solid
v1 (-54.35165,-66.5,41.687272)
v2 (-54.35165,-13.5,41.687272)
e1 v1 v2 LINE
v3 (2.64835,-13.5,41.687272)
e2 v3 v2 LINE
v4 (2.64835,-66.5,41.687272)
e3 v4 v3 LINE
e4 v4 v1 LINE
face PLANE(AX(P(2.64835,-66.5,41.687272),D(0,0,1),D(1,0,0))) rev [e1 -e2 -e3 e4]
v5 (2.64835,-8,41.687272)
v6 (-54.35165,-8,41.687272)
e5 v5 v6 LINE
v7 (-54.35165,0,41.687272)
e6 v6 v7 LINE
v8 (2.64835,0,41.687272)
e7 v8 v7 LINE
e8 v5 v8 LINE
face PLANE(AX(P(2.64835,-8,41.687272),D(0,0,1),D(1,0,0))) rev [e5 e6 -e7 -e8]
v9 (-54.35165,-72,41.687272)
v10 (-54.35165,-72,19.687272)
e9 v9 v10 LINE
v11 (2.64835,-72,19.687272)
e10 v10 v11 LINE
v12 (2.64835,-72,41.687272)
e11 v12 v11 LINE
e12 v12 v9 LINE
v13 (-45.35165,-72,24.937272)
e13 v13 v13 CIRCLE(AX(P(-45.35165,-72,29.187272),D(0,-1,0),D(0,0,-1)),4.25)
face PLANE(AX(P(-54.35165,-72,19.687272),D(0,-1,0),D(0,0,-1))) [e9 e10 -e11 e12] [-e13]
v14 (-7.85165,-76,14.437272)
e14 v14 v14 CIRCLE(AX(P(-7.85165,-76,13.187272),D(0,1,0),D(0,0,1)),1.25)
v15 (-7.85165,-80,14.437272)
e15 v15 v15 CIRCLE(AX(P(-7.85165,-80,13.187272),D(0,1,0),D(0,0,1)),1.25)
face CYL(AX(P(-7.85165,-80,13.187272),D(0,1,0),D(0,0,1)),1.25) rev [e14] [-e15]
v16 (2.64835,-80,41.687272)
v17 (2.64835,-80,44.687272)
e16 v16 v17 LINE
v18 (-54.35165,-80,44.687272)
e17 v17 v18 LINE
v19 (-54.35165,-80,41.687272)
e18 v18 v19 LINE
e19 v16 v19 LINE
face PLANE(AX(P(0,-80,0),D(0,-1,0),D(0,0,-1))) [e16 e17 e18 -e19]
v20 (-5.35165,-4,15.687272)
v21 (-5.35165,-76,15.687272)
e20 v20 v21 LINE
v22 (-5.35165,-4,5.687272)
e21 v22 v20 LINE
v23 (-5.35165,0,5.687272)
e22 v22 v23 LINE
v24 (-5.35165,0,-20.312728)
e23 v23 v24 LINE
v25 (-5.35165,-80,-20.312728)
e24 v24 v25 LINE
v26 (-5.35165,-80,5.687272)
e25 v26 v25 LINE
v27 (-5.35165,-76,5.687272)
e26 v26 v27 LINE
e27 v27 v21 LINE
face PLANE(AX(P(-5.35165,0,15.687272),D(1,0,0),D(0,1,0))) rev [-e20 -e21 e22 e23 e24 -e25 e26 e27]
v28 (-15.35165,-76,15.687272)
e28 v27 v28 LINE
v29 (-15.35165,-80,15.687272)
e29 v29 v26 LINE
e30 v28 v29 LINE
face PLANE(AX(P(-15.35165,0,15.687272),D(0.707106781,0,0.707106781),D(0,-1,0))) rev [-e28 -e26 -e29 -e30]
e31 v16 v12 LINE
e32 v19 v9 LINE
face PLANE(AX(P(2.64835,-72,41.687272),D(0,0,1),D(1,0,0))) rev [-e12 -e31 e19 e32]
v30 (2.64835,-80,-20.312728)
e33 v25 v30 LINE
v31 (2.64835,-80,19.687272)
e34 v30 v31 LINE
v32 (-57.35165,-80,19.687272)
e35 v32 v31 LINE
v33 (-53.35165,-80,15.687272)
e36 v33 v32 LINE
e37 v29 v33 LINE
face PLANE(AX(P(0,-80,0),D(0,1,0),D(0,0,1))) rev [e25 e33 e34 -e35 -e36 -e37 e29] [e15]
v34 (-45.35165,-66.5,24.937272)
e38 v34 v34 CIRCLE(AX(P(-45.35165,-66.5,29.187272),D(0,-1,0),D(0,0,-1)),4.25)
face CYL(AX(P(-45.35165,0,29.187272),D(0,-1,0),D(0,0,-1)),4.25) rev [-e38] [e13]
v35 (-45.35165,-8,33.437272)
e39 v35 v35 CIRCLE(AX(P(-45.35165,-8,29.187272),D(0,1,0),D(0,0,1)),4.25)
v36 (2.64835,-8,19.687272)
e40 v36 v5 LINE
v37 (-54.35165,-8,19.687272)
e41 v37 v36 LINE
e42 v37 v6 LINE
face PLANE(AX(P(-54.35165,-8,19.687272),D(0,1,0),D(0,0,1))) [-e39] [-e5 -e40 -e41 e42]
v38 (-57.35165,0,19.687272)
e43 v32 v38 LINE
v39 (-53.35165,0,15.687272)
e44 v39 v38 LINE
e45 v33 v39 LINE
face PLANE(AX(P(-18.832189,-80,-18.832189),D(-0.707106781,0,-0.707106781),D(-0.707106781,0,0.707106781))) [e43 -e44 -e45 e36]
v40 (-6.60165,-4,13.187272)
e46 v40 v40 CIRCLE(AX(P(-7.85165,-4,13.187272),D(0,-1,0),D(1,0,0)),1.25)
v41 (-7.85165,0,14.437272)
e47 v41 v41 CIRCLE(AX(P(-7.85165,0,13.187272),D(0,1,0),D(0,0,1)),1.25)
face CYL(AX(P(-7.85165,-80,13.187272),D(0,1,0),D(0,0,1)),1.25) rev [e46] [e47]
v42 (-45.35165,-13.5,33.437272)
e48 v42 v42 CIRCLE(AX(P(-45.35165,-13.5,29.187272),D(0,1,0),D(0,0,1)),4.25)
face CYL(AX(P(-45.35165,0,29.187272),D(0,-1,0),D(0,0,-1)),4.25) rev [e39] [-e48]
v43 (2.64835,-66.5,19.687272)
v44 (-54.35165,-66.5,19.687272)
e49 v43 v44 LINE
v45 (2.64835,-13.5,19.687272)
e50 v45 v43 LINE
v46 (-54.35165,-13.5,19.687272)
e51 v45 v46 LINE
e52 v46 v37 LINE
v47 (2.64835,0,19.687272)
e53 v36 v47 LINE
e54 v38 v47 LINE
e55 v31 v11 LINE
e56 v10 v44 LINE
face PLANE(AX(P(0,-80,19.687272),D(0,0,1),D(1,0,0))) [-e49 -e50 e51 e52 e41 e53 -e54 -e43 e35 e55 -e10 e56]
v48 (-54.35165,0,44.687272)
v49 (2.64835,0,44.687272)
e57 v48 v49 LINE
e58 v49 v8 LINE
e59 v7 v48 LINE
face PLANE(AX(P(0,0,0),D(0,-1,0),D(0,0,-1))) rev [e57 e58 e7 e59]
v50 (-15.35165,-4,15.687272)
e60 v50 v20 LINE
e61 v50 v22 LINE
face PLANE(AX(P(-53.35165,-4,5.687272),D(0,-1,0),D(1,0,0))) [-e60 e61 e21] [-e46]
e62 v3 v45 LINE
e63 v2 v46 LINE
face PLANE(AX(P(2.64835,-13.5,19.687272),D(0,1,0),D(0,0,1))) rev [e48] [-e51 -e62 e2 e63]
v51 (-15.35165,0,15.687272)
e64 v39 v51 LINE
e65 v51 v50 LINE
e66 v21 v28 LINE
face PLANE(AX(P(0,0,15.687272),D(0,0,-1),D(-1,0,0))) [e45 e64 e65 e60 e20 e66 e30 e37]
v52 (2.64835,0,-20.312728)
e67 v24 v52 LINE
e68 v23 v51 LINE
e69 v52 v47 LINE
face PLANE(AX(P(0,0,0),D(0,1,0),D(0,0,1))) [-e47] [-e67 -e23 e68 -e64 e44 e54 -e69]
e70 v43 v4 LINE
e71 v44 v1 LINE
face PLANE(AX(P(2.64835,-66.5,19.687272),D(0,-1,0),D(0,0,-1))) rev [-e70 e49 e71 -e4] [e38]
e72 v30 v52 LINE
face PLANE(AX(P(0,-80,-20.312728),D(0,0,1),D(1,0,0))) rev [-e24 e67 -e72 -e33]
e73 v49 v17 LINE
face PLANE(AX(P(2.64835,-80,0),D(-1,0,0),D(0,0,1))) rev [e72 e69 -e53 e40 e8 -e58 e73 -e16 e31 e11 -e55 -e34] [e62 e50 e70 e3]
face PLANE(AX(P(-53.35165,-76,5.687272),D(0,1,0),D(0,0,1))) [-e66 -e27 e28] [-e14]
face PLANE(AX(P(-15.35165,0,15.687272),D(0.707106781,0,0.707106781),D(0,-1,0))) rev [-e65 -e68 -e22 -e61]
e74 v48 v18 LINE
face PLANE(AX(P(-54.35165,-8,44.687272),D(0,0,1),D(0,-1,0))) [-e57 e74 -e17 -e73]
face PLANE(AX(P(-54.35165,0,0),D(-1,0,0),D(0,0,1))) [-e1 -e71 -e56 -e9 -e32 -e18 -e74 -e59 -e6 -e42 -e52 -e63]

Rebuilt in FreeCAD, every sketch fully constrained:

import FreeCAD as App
import Part
import Sketcher
from FreeCAD import Vector
Q = App.Units.Quantity


def edges_at(feature, points):
    """Names of the edges that pass closest to the given points."""
    edges = feature.Shape.Edges
    near = lambda p: min(range(len(edges)), key=lambda i: edges[i].distToShape(Part.Vertex(*p))[0])
    return sorted({f"Edge{near(p) + 1}" for p in points})

doc = App.newDocument("Part")
params = doc.addObject("Spreadsheet::Sheet", "Params")
for row, (alias, value) in enumerate([
    ("sketch1_width", "60 mm"),
    ("sketch1_width2", "20 mm"),
    ("sketch1_height", "40 mm"),
    ("pad1_length", "80 mm"),
    ("sketch2_width", "64 mm"),
    ("sketch2_height", "25 mm"),
    ("pad2_length", "57 mm"),
    ("sketch3_width", "57 mm"),
    ("sketch3_height", "6 mm"),
    ("pad3_length", "8 mm"),
    ("sketch4_width", "57 mm"),
    ("sketch4_height", "6 mm"),
    ("pad4_length", "8 mm"),
    ("sketch5_width", "48 mm"),
    ("sketch5_height", "80 mm"),
    ("pocket1_length", "36 mm"),
    ("chamfer_size", "10 mm"),
    ("sketch6_width", "48 mm"),
    ("sketch6_height", "72 mm"),
    ("pocket2_length", "10 mm"),
    ("sketch7_diameter", "2.5 mm"),
    ("sketch8_width", "53 mm"),
    ("sketch8_height", "19 mm"),
    ("sketch9_diameter", "8.5 mm"),
    ("sketch10_width", "8 mm"),
    ("sketch10_width2", "53 mm"),
    ("sketch10_height", "3 mm"),
], start=1):
    params.set(f"A{row}", alias)
    params.set(f"B{row}", "=" + value)
    params.setAlias(f"B{row}", alias)

body = doc.addObject("PartDesign::Body", "Body")

sketch1 = body.newObject("Sketcher::SketchObject", "Sketch")
sketch1.AttachmentSupport = (doc.getObject("XZ_Plane"), [""])
sketch1.MapMode = "FlatFace"
sketch1.addGeometry(Part.LineSegment(Vector(-17.35165, -20.312728, 0), Vector(-57.35165, 19.687272, 0)), False)
sketch1.addGeometry(Part.LineSegment(Vector(-57.35165, 19.687272, 0), Vector(2.64835, 19.687272, 0)), False)
sketch1.addGeometry(Part.LineSegment(Vector(2.64835, 19.687272, 0), Vector(2.64835, -20.312728, 0)), False)
sketch1.addGeometry(Part.LineSegment(Vector(2.64835, -20.312728, 0), Vector(-17.35165, -20.312728, 0)), False)
sketch1.addConstraint(Sketcher.Constraint("Coincident", 0, 2, 1, 1))
sketch1.addConstraint(Sketcher.Constraint("Coincident", 1, 2, 2, 1))
sketch1.addConstraint(Sketcher.Constraint("Coincident", 2, 2, 3, 1))
sketch1.addConstraint(Sketcher.Constraint("Coincident", 3, 2, 0, 1))
sketch1.addConstraint(Sketcher.Constraint("Horizontal", 1))
sketch1.addConstraint(Sketcher.Constraint("Vertical", 2))
sketch1.addConstraint(Sketcher.Constraint("Horizontal", 3))
sketch1.addConstraint(Sketcher.Constraint("DistanceX", 1, 1, 1, 2, Q("60 mm")))
sketch1.addConstraint(Sketcher.Constraint("DistanceX", 3, 2, 3, 1, Q("20 mm")))
sketch1.addConstraint(Sketcher.Constraint("DistanceY", 2, 2, 2, 1, Q("40 mm")))
sketch1.addConstraint(Sketcher.Constraint("DistanceX", 0, 2, -1, 1, Q("57.35165 mm")))
sketch1.addConstraint(Sketcher.Constraint("DistanceY", -1, 1, 0, 2, Q("19.687272 mm")))
sketch1.setExpression("Constraints[7]", "Params.sketch1_width")
sketch1.setExpression("Constraints[8]", "Params.sketch1_width2")
sketch1.setExpression("Constraints[9]", "Params.sketch1_height")
pad1 = body.newObject("PartDesign::Pad", "Pad")
pad1.Profile = sketch1
pad1.setExpression("Length", "Params.pad1_length")

sketch2 = body.newObject("Sketcher::SketchObject", "Sketch001")
sketch2.AttachmentSupport = (doc.getObject("YZ_Plane"), [""])
sketch2.MapMode = "FlatFace"
sketch2.AttachmentOffset = App.Placement(Vector(0, 0, 2.64835), App.Rotation())
sketch2.addGeometry(Part.LineSegment(Vector(-8, 44.687272, 0), Vector(-72, 44.687272, 0)), False)
sketch2.addGeometry(Part.LineSegment(Vector(-72, 44.687272, 0), Vector(-72, 19.687272, 0)), False)
sketch2.addGeometry(Part.LineSegment(Vector(-72, 19.687272, 0), Vector(-8, 19.687272, 0)), False)
sketch2.addGeometry(Part.LineSegment(Vector(-8, 19.687272, 0), Vector(-8, 44.687272, 0)), False)
sketch2.addConstraint(Sketcher.Constraint("Coincident", 0, 2, 1, 1))
sketch2.addConstraint(Sketcher.Constraint("Coincident", 1, 2, 2, 1))
sketch2.addConstraint(Sketcher.Constraint("Coincident", 2, 2, 3, 1))
sketch2.addConstraint(Sketcher.Constraint("Coincident", 3, 2, 0, 1))
sketch2.addConstraint(Sketcher.Constraint("Horizontal", 0))
sketch2.addConstraint(Sketcher.Constraint("Vertical", 1))
sketch2.addConstraint(Sketcher.Constraint("Horizontal", 2))
sketch2.addConstraint(Sketcher.Constraint("Vertical", 3))
sketch2.addConstraint(Sketcher.Constraint("DistanceX", 0, 2, 0, 1, Q("64 mm")))
sketch2.addConstraint(Sketcher.Constraint("DistanceY", 1, 2, 1, 1, Q("25 mm")))
sketch2.addConstraint(Sketcher.Constraint("DistanceX", 0, 2, -1, 1, Q("72 mm")))
sketch2.addConstraint(Sketcher.Constraint("DistanceY", -1, 1, 0, 2, Q("44.687272 mm")))
sketch2.setExpression("Constraints[8]", "Params.sketch2_width")
sketch2.setExpression("Constraints[9]", "Params.sketch2_height")
pad2 = body.newObject("PartDesign::Pad", "Pad001")
pad2.Profile = sketch2
pad2.setExpression("Length", "Params.pad2_length")
pad2.Reversed = True

sketch3 = body.newObject("Sketcher::SketchObject", "Sketch002")
sketch3.AttachmentSupport = (doc.getObject("XZ_Plane"), [""])
sketch3.MapMode = "FlatFace"
sketch3.AttachmentOffset = App.Placement(Vector(0, 0, 72), App.Rotation())
sketch3.addGeometry(Part.LineSegment(Vector(-54.35165, 44.687272, 0), Vector(-54.35165, 38.687272, 0)), False)
sketch3.addGeometry(Part.LineSegment(Vector(-54.35165, 38.687272, 0), Vector(2.64835, 38.687272, 0)), False)
sketch3.addGeometry(Part.LineSegment(Vector(2.64835, 38.687272, 0), Vector(2.64835, 44.687272, 0)), False)
sketch3.addGeometry(Part.LineSegment(Vector(2.64835, 44.687272, 0), Vector(-54.35165, 44.687272, 0)), False)
sketch3.addConstraint(Sketcher.Constraint("Coincident", 0, 2, 1, 1))
sketch3.addConstraint(Sketcher.Constraint("Coincident", 1, 2, 2, 1))
sketch3.addConstraint(Sketcher.Constraint("Coincident", 2, 2, 3, 1))
sketch3.addConstraint(Sketcher.Constraint("Coincident", 3, 2, 0, 1))
sketch3.addConstraint(Sketcher.Constraint("Vertical", 0))
sketch3.addConstraint(Sketcher.Constraint("Horizontal", 1))
sketch3.addConstraint(Sketcher.Constraint("Vertical", 2))
sketch3.addConstraint(Sketcher.Constraint("Horizontal", 3))
sketch3.addConstraint(Sketcher.Constraint("DistanceX", 1, 1, 1, 2, Q("57 mm")))
sketch3.addConstraint(Sketcher.Constraint("DistanceY", 0, 2, 0, 1, Q("6 mm")))
sketch3.addConstraint(Sketcher.Constraint("DistanceX", 0, 2, -1, 1, Q("54.35165 mm")))
sketch3.addConstraint(Sketcher.Constraint("DistanceY", -1, 1, 0, 2, Q("38.687272 mm")))
sketch3.setExpression("Constraints[8]", "Params.sketch3_width")
sketch3.setExpression("Constraints[9]", "Params.sketch3_height")
pad3 = body.newObject("PartDesign::Pad", "Pad002")
pad3.Profile = sketch3
pad3.setExpression("Length", "Params.pad3_length")

sketch4 = body.newObject("Sketcher::SketchObject", "Sketch003")
sketch4.AttachmentSupport = (doc.getObject("XZ_Plane"), [""])
sketch4.MapMode = "FlatFace"
sketch4.AttachmentOffset = App.Placement(Vector(0, 0, 8), App.Rotation())
sketch4.addGeometry(Part.LineSegment(Vector(-54.35165, 38.687272, 0), Vector(-54.35165, 44.687272, 0)), False)
sketch4.addGeometry(Part.LineSegment(Vector(-54.35165, 44.687272, 0), Vector(2.64835, 44.687272, 0)), False)
sketch4.addGeometry(Part.LineSegment(Vector(2.64835, 44.687272, 0), Vector(2.64835, 38.687272, 0)), False)
sketch4.addGeometry(Part.LineSegment(Vector(2.64835, 38.687272, 0), Vector(-54.35165, 38.687272, 0)), False)
sketch4.addConstraint(Sketcher.Constraint("Coincident", 0, 2, 1, 1))
sketch4.addConstraint(Sketcher.Constraint("Coincident", 1, 2, 2, 1))
sketch4.addConstraint(Sketcher.Constraint("Coincident", 2, 2, 3, 1))
sketch4.addConstraint(Sketcher.Constraint("Coincident", 3, 2, 0, 1))
sketch4.addConstraint(Sketcher.Constraint("Vertical", 0))
sketch4.addConstraint(Sketcher.Constraint("Horizontal", 1))
sketch4.addConstraint(Sketcher.Constraint("Vertical", 2))
sketch4.addConstraint(Sketcher.Constraint("Horizontal", 3))
sketch4.addConstraint(Sketcher.Constraint("DistanceX", 1, 1, 1, 2, Q("57 mm")))
sketch4.addConstraint(Sketcher.Constraint("DistanceY", 0, 1, 0, 2, Q("6 mm")))
sketch4.addConstraint(Sketcher.Constraint("DistanceX", 0, 2, -1, 1, Q("54.35165 mm")))
sketch4.addConstraint(Sketcher.Constraint("DistanceY", -1, 1, 0, 2, Q("44.687272 mm")))
sketch4.setExpression("Constraints[8]", "Params.sketch4_width")
sketch4.setExpression("Constraints[9]", "Params.sketch4_height")
pad4 = body.newObject("PartDesign::Pad", "Pad003")
pad4.Profile = sketch4
pad4.setExpression("Length", "Params.pad4_length")
pad4.Reversed = True

sketch5 = body.newObject("Sketcher::SketchObject", "Sketch004")
sketch5.AttachmentSupport = (doc.getObject("XY_Plane"), [""])
sketch5.MapMode = "FlatFace"
sketch5.AttachmentOffset = App.Placement(Vector(0, 0, -20.312728), App.Rotation())
sketch5.addGeometry(Part.LineSegment(Vector(-5.35165, 0, 0), Vector(-5.35165, -80, 0)), False)
sketch5.addGeometry(Part.LineSegment(Vector(-5.35165, -80, 0), Vector(-53.35165, -80, 0)), False)
sketch5.addGeometry(Part.LineSegment(Vector(-53.35165, -80, 0), Vector(-53.35165, 0, 0)), False)
sketch5.addGeometry(Part.LineSegment(Vector(-53.35165, 0, 0), Vector(-5.35165, 0, 0)), False)
sketch5.addConstraint(Sketcher.Constraint("Coincident", 0, 2, 1, 1))
sketch5.addConstraint(Sketcher.Constraint("Coincident", 1, 2, 2, 1))
sketch5.addConstraint(Sketcher.Constraint("Coincident", 2, 2, 3, 1))
sketch5.addConstraint(Sketcher.Constraint("Coincident", 3, 2, 0, 1))
sketch5.addConstraint(Sketcher.Constraint("Vertical", 0))
sketch5.addConstraint(Sketcher.Constraint("Horizontal", 1))
sketch5.addConstraint(Sketcher.Constraint("Vertical", 2))
sketch5.addConstraint(Sketcher.Constraint("Horizontal", 3))
sketch5.addConstraint(Sketcher.Constraint("PointOnObject", 2, 2, -1))
sketch5.addConstraint(Sketcher.Constraint("DistanceX", 1, 2, 1, 1, Q("48 mm")))
sketch5.addConstraint(Sketcher.Constraint("DistanceY", 0, 2, 0, 1, Q("80 mm")))
sketch5.addConstraint(Sketcher.Constraint("DistanceX", 0, 2, -1, 1, Q("5.35165 mm")))
sketch5.setExpression("Constraints[9]", "Params.sketch5_width")
sketch5.setExpression("Constraints[10]", "Params.sketch5_height")
pocket1 = body.newObject("PartDesign::Pocket", "Pocket")
pocket1.Profile = sketch5
pocket1.setExpression("Length", "Params.pocket1_length")
pocket1.Reversed = True
doc.recompute()

chamfer = body.newObject("PartDesign::Chamfer", "Chamfer")
chamfer.Base = (pocket1, edges_at(pocket1, [(-5.352, -40, 15.687)]))
chamfer.setExpression("Size", "Params.chamfer_size")

sketch6 = body.newObject("Sketcher::SketchObject", "Sketch005")
sketch6.AttachmentSupport = (doc.getObject("XY_Plane"), [""])
sketch6.MapMode = "FlatFace"
sketch6.AttachmentOffset = App.Placement(Vector(0, 0, 15.687272), App.Rotation())
sketch6.addGeometry(Part.LineSegment(Vector(-5.35165, -4, 0), Vector(-5.35165, -76, 0)), False)
sketch6.addGeometry(Part.LineSegment(Vector(-5.35165, -76, 0), Vector(-53.35165, -76, 0)), False)
sketch6.addGeometry(Part.LineSegment(Vector(-53.35165, -76, 0), Vector(-53.35165, -4, 0)), False)
sketch6.addGeometry(Part.LineSegment(Vector(-53.35165, -4, 0), Vector(-5.35165, -4, 0)), False)
sketch6.addConstraint(Sketcher.Constraint("Coincident", 0, 2, 1, 1))
sketch6.addConstraint(Sketcher.Constraint("Coincident", 1, 2, 2, 1))
sketch6.addConstraint(Sketcher.Constraint("Coincident", 2, 2, 3, 1))
sketch6.addConstraint(Sketcher.Constraint("Coincident", 3, 2, 0, 1))
sketch6.addConstraint(Sketcher.Constraint("Vertical", 0))
sketch6.addConstraint(Sketcher.Constraint("Horizontal", 1))
sketch6.addConstraint(Sketcher.Constraint("Vertical", 2))
sketch6.addConstraint(Sketcher.Constraint("Horizontal", 3))
sketch6.addConstraint(Sketcher.Constraint("DistanceX", 1, 2, 1, 1, Q("48 mm")))
sketch6.addConstraint(Sketcher.Constraint("DistanceY", 0, 2, 0, 1, Q("72 mm")))
sketch6.addConstraint(Sketcher.Constraint("DistanceY", 0, 2, -1, 1, Q("76 mm")))
sketch6.addConstraint(Sketcher.Constraint("DistanceX", 0, 2, -1, 1, Q("5.35165 mm")))
sketch6.setExpression("Constraints[8]", "Params.sketch6_width")
sketch6.setExpression("Constraints[9]", "Params.sketch6_height")
pocket2 = body.newObject("PartDesign::Pocket", "Pocket001")
pocket2.Profile = sketch6
pocket2.setExpression("Length", "Params.pocket2_length")

sketch7 = body.newObject("Sketcher::SketchObject", "Sketch006")
sketch7.AttachmentSupport = (doc.getObject("XZ_Plane"), [""])
sketch7.MapMode = "FlatFace"
sketch7.addGeometry(Part.Circle(Vector(-7.85165, 13.187272, 0), Vector(0, 0, 1), 1.25), False)
sketch7.addConstraint(Sketcher.Constraint("Diameter", 0, Q("2.5 mm")))
sketch7.addConstraint(Sketcher.Constraint("DistanceX", 0, 3, -1, 1, Q("7.85165 mm")))
sketch7.addConstraint(Sketcher.Constraint("DistanceY", -1, 1, 0, 3, Q("13.187272 mm")))
sketch7.setExpression("Constraints[0]", "Params.sketch7_diameter")
pocket3 = body.newObject("PartDesign::Pocket", "Pocket002")
pocket3.Profile = sketch7
pocket3.Type = "ThroughAll"
pocket3.Reversed = True

sketch8 = body.newObject("Sketcher::SketchObject", "Sketch007")
sketch8.AttachmentSupport = (doc.getObject("YZ_Plane"), [""])
sketch8.MapMode = "FlatFace"
sketch8.AttachmentOffset = App.Placement(Vector(0, 0, -54.35165), App.Rotation())
sketch8.addGeometry(Part.LineSegment(Vector(-13.5, 19.687272, 0), Vector(-66.5, 19.687272, 0)), False)
sketch8.addGeometry(Part.LineSegment(Vector(-66.5, 19.687272, 0), Vector(-66.5, 38.687272, 0)), False)
sketch8.addGeometry(Part.LineSegment(Vector(-66.5, 38.687272, 0), Vector(-13.5, 38.687272, 0)), False)
sketch8.addGeometry(Part.LineSegment(Vector(-13.5, 38.687272, 0), Vector(-13.5, 19.687272, 0)), False)
sketch8.addConstraint(Sketcher.Constraint("Coincident", 0, 2, 1, 1))
sketch8.addConstraint(Sketcher.Constraint("Coincident", 1, 2, 2, 1))
sketch8.addConstraint(Sketcher.Constraint("Coincident", 2, 2, 3, 1))
sketch8.addConstraint(Sketcher.Constraint("Coincident", 3, 2, 0, 1))
sketch8.addConstraint(Sketcher.Constraint("Horizontal", 0))
sketch8.addConstraint(Sketcher.Constraint("Vertical", 1))
sketch8.addConstraint(Sketcher.Constraint("Horizontal", 2))
sketch8.addConstraint(Sketcher.Constraint("Vertical", 3))
sketch8.addConstraint(Sketcher.Constraint("DistanceX", 0, 2, 0, 1, Q("53 mm")))
sketch8.addConstraint(Sketcher.Constraint("DistanceY", 1, 1, 1, 2, Q("19 mm")))
sketch8.addConstraint(Sketcher.Constraint("DistanceX", 0, 2, -1, 1, Q("66.5 mm")))
sketch8.addConstraint(Sketcher.Constraint("DistanceY", -1, 1, 0, 2, Q("19.687272 mm")))
sketch8.setExpression("Constraints[8]", "Params.sketch8_width")
sketch8.setExpression("Constraints[9]", "Params.sketch8_height")
pocket4 = body.newObject("PartDesign::Pocket", "Pocket003")
pocket4.Profile = sketch8
pocket4.Type = "ThroughAll"
pocket4.Reversed = True

sketch9 = body.newObject("Sketcher::SketchObject", "Sketch008")
sketch9.AttachmentSupport = (doc.getObject("XZ_Plane"), [""])
sketch9.MapMode = "FlatFace"
sketch9.AttachmentOffset = App.Placement(Vector(0, 0, 72), App.Rotation())
sketch9.addGeometry(Part.Circle(Vector(-45.35165, 29.187272, 0), Vector(0, 0, 1), 4.25), False)
sketch9.addConstraint(Sketcher.Constraint("Diameter", 0, Q("8.5 mm")))
sketch9.addConstraint(Sketcher.Constraint("DistanceX", 0, 3, -1, 1, Q("45.35165 mm")))
sketch9.addConstraint(Sketcher.Constraint("DistanceY", -1, 1, 0, 3, Q("29.187272 mm")))
sketch9.setExpression("Constraints[0]", "Params.sketch9_diameter")
pocket5 = body.newObject("PartDesign::Pocket", "Pocket004")
pocket5.Profile = sketch9
pocket5.Type = "ThroughAll"

sketch10 = body.newObject("Sketcher::SketchObject", "Sketch009")
sketch10.AttachmentSupport = (doc.getObject("YZ_Plane"), [""])
sketch10.MapMode = "FlatFace"
sketch10.AttachmentOffset = App.Placement(Vector(0, 0, -54.35165), App.Rotation())
sketch10.addGeometry(Part.LineSegment(Vector(-72, 38.687272, 0), Vector(-80, 38.687272, 0)), False)
sketch10.addGeometry(Part.LineSegment(Vector(-80, 38.687272, 0), Vector(-80, 41.687272, 0)), False)
sketch10.addGeometry(Part.LineSegment(Vector(-80, 41.687272, 0), Vector(-72, 41.687272, 0)), False)
sketch10.addGeometry(Part.LineSegment(Vector(-72, 41.687272, 0), Vector(-72, 38.687272, 0)), False)
sketch10.addGeometry(Part.LineSegment(Vector(-13.5, 38.687272, 0), Vector(-66.5, 38.687272, 0)), False)
sketch10.addGeometry(Part.LineSegment(Vector(-66.5, 38.687272, 0), Vector(-66.5, 41.687272, 0)), False)
sketch10.addGeometry(Part.LineSegment(Vector(-66.5, 41.687272, 0), Vector(-13.5, 41.687272, 0)), False)
sketch10.addGeometry(Part.LineSegment(Vector(-13.5, 41.687272, 0), Vector(-13.5, 38.687272, 0)), False)
sketch10.addGeometry(Part.LineSegment(Vector(0, 38.687272, 0), Vector(-8, 38.687272, 0)), False)
sketch10.addGeometry(Part.LineSegment(Vector(-8, 38.687272, 0), Vector(-8, 41.687272, 0)), False)
sketch10.addGeometry(Part.LineSegment(Vector(-8, 41.687272, 0), Vector(0, 41.687272, 0)), False)
sketch10.addGeometry(Part.LineSegment(Vector(0, 41.687272, 0), Vector(0, 38.687272, 0)), False)
sketch10.addConstraint(Sketcher.Constraint("Coincident", 0, 2, 1, 1))
sketch10.addConstraint(Sketcher.Constraint("Coincident", 1, 2, 2, 1))
sketch10.addConstraint(Sketcher.Constraint("Coincident", 2, 2, 3, 1))
sketch10.addConstraint(Sketcher.Constraint("Coincident", 3, 2, 0, 1))
sketch10.addConstraint(Sketcher.Constraint("Coincident", 4, 2, 5, 1))
sketch10.addConstraint(Sketcher.Constraint("Coincident", 5, 2, 6, 1))
sketch10.addConstraint(Sketcher.Constraint("Coincident", 6, 2, 7, 1))
sketch10.addConstraint(Sketcher.Constraint("Coincident", 7, 2, 4, 1))
sketch10.addConstraint(Sketcher.Constraint("Coincident", 8, 2, 9, 1))
sketch10.addConstraint(Sketcher.Constraint("Coincident", 9, 2, 10, 1))
sketch10.addConstraint(Sketcher.Constraint("Coincident", 10, 2, 11, 1))
sketch10.addConstraint(Sketcher.Constraint("Coincident", 11, 2, 8, 1))
sketch10.addConstraint(Sketcher.Constraint("Horizontal", 0))
sketch10.addConstraint(Sketcher.Constraint("Vertical", 1))
sketch10.addConstraint(Sketcher.Constraint("Horizontal", 2))
sketch10.addConstraint(Sketcher.Constraint("Vertical", 3))
sketch10.addConstraint(Sketcher.Constraint("Horizontal", 4))
sketch10.addConstraint(Sketcher.Constraint("Vertical", 5))
sketch10.addConstraint(Sketcher.Constraint("Horizontal", 6))
sketch10.addConstraint(Sketcher.Constraint("Vertical", 7))
sketch10.addConstraint(Sketcher.Constraint("Horizontal", 8))
sketch10.addConstraint(Sketcher.Constraint("Vertical", 9))
sketch10.addConstraint(Sketcher.Constraint("Horizontal", 10))
sketch10.addConstraint(Sketcher.Constraint("Vertical", 11))
sketch10.addConstraint(Sketcher.Constraint("PointOnObject", 10, 2, -2))
sketch10.addConstraint(Sketcher.Constraint("Horizontal", 3, 2, 4, 2))
sketch10.addConstraint(Sketcher.Constraint("Horizontal", 2, 2, 5, 2))
sketch10.addConstraint(Sketcher.Constraint("Horizontal", 7, 2, 8, 2))
sketch10.addConstraint(Sketcher.Constraint("Horizontal", 6, 2, 9, 2))
sketch10.addConstraint(Sketcher.Constraint("Equal", 2, 8))
sketch10.addConstraint(Sketcher.Constraint("DistanceX", 0, 2, 0, 1, Q("8 mm")))
sketch10.addConstraint(Sketcher.Constraint("DistanceX", 4, 2, 4, 1, Q("53 mm")))
sketch10.addConstraint(Sketcher.Constraint("DistanceY", 1, 1, 1, 2, Q("3 mm")))
sketch10.addConstraint(Sketcher.Constraint("DistanceX", 0, 2, -1, 1, Q("80 mm")))
sketch10.addConstraint(Sketcher.Constraint("DistanceX", 4, 2, -1, 1, Q("66.5 mm")))
sketch10.addConstraint(Sketcher.Constraint("DistanceY", -1, 1, 0, 2, Q("38.687272 mm")))
sketch10.setExpression("Constraints[30]", "Params.sketch10_width")
sketch10.setExpression("Constraints[31]", "Params.sketch10_width2")
sketch10.setExpression("Constraints[32]", "Params.sketch10_height")
pocket6 = body.newObject("PartDesign::Pocket", "Pocket005")
pocket6.Profile = sketch10
pocket6.Type = "ThroughAll"
pocket6.Reversed = True

doc.recompute()
